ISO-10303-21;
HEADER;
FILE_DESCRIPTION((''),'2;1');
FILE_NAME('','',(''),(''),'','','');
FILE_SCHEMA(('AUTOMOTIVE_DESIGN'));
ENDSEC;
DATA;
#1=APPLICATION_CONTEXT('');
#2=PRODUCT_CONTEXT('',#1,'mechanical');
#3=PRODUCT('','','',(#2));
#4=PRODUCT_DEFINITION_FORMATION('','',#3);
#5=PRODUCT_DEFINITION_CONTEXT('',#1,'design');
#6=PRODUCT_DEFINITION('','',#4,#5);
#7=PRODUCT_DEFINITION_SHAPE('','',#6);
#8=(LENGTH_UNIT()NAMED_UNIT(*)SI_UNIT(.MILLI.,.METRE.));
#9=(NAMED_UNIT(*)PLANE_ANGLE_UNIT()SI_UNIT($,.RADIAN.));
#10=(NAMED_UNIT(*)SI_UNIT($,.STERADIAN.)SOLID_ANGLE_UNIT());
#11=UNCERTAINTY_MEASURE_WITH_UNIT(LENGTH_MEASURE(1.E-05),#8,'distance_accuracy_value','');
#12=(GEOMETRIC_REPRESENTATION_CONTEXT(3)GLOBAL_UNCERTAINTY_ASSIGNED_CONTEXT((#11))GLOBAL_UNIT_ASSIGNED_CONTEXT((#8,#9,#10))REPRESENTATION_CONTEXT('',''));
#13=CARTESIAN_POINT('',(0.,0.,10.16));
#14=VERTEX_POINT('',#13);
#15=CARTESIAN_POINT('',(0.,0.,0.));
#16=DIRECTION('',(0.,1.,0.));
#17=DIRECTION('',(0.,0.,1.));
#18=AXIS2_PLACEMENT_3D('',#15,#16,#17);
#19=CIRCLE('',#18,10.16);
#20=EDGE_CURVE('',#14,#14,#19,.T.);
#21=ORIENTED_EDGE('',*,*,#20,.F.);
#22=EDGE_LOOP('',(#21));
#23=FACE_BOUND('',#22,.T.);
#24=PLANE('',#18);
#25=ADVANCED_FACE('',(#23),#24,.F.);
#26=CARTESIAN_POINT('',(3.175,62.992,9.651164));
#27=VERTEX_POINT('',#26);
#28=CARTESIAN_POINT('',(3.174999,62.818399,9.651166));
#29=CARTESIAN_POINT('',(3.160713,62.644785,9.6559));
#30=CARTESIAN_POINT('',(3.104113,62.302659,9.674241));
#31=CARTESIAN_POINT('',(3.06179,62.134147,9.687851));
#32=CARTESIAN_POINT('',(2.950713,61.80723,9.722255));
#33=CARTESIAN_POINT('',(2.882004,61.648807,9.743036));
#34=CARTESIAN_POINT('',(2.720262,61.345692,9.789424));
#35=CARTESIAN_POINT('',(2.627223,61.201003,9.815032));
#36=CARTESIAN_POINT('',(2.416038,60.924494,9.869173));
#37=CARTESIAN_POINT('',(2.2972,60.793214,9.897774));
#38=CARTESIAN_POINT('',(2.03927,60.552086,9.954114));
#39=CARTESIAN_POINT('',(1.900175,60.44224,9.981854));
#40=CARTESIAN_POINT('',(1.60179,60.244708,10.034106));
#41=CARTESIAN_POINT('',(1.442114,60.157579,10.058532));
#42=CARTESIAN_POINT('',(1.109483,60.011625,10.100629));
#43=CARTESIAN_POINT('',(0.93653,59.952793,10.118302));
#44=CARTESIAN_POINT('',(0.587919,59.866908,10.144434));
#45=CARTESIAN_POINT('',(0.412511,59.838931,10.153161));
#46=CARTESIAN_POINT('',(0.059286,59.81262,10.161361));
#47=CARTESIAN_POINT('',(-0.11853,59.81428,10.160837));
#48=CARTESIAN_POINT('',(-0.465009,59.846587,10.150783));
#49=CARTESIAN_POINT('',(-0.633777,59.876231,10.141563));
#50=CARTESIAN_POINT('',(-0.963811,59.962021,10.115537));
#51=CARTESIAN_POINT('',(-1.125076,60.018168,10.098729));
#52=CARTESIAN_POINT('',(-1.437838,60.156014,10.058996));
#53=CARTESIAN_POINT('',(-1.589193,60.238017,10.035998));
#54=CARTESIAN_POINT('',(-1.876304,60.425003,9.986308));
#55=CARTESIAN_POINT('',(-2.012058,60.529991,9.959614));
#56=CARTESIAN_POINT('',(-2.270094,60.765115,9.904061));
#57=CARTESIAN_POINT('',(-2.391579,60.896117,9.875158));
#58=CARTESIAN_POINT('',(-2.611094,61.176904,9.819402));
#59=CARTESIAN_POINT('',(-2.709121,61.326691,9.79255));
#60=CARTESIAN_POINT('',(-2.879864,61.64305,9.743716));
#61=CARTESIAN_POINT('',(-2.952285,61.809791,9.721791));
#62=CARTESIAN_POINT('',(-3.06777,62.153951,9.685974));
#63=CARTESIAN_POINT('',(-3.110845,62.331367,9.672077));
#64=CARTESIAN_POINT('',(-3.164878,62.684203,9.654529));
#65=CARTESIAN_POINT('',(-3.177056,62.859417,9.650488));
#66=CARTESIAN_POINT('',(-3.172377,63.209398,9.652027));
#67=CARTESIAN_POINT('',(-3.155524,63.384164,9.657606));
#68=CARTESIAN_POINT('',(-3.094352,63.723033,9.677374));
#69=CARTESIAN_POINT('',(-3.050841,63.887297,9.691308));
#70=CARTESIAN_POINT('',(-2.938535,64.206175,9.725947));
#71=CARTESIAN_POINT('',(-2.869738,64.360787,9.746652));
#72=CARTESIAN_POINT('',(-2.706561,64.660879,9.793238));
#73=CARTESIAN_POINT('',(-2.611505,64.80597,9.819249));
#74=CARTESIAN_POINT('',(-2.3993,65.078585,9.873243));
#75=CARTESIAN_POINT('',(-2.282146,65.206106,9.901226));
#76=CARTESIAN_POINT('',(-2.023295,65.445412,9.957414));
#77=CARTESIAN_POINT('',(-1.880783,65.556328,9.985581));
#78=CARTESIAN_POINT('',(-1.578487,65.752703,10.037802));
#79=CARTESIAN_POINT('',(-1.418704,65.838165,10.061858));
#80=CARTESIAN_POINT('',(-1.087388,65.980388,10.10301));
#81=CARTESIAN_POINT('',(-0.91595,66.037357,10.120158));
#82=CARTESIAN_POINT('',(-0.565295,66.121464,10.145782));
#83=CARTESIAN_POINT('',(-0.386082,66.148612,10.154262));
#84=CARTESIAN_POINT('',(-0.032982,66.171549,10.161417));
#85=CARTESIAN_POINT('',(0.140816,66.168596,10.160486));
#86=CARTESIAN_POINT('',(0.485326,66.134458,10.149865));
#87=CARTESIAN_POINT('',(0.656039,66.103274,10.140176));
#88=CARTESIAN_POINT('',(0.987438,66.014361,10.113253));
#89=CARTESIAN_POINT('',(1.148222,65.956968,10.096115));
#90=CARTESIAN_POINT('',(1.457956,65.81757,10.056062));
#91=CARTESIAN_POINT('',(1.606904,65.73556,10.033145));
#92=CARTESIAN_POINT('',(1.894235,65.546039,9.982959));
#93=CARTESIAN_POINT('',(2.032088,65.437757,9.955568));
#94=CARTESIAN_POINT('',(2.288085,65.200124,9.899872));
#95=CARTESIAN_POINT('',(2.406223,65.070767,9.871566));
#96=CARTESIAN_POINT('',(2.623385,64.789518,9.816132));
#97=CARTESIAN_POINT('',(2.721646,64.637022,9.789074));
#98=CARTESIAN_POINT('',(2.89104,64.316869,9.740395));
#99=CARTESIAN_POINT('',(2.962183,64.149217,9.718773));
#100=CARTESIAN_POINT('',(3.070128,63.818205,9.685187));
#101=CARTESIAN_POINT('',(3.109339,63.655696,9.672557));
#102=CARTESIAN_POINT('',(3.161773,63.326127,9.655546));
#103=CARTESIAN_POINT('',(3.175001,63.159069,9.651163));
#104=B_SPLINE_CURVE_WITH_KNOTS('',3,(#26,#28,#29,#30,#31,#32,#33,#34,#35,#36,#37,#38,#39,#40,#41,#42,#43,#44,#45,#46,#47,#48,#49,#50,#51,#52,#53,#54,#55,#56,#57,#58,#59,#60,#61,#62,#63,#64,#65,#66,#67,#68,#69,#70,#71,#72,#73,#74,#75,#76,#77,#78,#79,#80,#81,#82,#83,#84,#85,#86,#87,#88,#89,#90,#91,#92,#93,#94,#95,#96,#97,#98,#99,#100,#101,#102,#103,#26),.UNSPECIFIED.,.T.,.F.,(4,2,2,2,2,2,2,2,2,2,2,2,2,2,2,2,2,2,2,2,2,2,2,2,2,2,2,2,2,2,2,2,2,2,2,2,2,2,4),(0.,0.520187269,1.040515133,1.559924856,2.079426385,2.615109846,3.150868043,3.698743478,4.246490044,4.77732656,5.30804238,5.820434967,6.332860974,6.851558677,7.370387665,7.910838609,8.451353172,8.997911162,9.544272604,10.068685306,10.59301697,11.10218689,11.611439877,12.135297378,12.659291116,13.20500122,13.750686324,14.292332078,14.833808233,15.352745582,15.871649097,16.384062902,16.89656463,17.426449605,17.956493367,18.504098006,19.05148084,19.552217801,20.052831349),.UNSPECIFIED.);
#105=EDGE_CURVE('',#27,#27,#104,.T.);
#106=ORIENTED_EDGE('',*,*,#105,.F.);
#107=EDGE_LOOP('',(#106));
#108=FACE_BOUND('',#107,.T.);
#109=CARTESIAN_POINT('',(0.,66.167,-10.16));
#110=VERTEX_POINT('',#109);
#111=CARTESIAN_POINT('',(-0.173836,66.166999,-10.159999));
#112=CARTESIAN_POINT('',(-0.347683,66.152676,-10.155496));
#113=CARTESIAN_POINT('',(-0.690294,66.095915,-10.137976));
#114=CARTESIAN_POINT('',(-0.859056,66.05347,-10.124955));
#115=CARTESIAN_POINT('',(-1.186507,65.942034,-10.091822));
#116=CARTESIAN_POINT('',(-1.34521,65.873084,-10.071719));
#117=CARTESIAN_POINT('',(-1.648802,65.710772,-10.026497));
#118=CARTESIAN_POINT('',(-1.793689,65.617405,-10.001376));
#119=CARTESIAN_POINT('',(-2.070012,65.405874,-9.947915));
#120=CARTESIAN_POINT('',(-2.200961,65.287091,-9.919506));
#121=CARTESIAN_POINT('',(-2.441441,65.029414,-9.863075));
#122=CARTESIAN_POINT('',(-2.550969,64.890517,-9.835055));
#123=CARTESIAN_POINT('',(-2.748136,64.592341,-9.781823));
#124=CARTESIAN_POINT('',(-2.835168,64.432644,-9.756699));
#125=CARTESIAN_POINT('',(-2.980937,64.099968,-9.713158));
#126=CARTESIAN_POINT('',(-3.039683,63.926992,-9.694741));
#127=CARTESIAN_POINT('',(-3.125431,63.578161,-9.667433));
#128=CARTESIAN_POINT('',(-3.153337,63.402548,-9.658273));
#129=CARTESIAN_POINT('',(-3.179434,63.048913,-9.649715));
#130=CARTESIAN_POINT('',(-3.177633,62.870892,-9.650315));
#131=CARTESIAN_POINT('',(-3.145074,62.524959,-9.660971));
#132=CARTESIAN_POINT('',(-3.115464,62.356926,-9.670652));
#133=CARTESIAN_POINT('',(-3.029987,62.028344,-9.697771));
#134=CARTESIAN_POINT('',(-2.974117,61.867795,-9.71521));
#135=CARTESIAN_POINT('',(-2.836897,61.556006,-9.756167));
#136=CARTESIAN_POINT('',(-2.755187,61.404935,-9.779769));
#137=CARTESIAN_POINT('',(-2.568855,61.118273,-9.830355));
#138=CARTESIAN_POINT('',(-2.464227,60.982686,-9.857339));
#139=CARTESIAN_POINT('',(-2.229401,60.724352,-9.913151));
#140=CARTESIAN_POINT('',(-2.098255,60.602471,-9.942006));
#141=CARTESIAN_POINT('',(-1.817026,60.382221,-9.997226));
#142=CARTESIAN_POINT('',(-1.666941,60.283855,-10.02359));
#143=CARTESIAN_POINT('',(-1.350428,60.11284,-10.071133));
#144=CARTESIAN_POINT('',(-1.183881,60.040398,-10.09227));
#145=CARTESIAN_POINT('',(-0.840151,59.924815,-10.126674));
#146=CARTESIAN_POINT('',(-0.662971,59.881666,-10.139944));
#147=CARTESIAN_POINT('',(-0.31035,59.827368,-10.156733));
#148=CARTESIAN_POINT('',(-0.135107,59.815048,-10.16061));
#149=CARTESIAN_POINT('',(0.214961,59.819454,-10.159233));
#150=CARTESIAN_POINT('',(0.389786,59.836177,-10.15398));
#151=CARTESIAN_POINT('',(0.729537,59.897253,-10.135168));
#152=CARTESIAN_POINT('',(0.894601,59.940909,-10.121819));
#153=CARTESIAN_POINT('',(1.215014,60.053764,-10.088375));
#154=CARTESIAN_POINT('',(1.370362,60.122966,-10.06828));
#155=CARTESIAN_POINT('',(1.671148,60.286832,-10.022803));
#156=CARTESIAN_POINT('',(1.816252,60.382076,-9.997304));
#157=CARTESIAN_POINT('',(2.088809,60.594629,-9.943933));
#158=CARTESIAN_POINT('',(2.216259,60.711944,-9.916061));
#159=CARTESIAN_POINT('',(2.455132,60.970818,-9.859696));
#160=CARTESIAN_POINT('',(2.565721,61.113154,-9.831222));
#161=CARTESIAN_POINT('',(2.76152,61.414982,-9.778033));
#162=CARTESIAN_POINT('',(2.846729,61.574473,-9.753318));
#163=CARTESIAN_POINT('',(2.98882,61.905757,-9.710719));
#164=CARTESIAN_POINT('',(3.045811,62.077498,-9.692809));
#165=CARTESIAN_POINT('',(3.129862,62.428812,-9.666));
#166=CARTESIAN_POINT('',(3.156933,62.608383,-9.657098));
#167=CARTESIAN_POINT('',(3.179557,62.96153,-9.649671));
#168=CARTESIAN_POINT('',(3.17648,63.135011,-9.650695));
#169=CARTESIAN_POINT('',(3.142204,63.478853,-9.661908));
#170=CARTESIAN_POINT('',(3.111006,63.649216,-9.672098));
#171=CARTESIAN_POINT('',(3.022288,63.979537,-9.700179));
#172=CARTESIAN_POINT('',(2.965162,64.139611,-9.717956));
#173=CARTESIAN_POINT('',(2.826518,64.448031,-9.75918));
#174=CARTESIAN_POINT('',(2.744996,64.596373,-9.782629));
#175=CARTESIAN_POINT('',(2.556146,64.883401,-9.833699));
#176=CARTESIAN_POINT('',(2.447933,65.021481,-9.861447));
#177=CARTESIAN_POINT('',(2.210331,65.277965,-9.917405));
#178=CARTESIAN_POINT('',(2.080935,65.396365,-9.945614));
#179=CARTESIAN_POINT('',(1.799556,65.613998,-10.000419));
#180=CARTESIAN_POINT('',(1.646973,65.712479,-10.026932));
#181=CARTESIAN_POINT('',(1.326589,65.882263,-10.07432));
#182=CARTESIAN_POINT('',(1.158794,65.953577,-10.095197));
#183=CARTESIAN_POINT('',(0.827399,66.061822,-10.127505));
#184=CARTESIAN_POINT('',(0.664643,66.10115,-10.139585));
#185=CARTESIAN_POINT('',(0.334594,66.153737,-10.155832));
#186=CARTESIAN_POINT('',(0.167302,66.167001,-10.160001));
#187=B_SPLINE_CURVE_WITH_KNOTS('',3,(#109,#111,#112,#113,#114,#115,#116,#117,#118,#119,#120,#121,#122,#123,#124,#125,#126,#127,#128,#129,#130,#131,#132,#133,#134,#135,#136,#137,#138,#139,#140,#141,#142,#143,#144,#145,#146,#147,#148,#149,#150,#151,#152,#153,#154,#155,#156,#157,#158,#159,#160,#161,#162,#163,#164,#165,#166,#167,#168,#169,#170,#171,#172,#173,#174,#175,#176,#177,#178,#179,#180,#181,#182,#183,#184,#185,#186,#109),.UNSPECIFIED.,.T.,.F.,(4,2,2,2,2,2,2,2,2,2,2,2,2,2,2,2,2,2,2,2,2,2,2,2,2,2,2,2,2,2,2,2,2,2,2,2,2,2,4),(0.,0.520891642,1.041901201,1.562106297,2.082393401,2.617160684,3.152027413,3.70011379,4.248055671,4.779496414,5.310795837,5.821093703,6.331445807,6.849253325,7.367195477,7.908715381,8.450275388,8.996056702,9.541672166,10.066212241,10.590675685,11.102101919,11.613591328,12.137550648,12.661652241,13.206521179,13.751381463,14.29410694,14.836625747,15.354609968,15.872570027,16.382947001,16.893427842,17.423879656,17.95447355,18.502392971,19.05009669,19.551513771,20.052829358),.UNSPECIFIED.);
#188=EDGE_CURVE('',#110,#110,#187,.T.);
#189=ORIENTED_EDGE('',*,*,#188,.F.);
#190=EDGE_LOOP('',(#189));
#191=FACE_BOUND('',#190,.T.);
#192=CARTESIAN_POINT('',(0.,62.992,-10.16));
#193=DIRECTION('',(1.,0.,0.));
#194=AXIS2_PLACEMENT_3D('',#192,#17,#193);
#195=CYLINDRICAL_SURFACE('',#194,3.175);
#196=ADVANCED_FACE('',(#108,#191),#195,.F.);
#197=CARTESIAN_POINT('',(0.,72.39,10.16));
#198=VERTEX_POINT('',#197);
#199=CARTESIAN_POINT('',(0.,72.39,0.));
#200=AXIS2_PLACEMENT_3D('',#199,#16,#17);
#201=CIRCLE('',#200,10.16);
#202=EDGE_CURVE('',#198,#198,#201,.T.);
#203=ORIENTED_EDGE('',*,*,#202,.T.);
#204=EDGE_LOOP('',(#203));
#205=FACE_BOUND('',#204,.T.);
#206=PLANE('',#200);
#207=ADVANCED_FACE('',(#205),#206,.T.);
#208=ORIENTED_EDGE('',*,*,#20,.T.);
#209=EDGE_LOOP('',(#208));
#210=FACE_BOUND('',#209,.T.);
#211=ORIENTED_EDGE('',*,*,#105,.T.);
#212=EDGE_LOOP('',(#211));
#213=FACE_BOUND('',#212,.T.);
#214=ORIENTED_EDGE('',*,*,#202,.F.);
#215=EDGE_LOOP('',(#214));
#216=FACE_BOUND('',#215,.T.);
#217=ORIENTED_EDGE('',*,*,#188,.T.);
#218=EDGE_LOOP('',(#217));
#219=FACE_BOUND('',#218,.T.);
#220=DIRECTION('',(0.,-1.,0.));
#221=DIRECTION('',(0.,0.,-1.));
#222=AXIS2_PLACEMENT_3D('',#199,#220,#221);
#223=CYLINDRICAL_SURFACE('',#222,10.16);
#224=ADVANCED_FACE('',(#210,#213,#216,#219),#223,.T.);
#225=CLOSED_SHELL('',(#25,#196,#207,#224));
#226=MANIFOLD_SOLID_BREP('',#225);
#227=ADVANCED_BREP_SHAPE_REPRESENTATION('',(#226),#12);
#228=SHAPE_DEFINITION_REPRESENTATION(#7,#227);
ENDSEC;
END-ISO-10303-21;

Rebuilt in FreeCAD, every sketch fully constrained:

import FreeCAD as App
import Part
import Sketcher

V = App.Vector
Q = App.Units.Quantity

doc = App.newDocument("Part")
body = doc.addObject("PartDesign::Body", "Body")

# Sketch on XZ plane
sketch1 = doc.addObject("Sketcher::SketchObject", "Sketch")
body.addObject(sketch1)
sketch1.AttachmentSupport = (doc.XZ_Plane, [""])
sketch1.MapMode = "FlatFace"
sketch1.addGeometry(Part.Circle(V(0, 0, 0), V(0, 0, 1), 10.16), False)
sketch1.addConstraint(Sketcher.Constraint("Coincident", 0, 3, -1, 1))
sketch1.addConstraint(Sketcher.Constraint("Diameter", 0, Q("0.8 in")))
pad1 = doc.addObject("PartDesign::Pad", "Pad")
body.addObject(pad1)
pad1.Profile = sketch1
pad1.Length = Q("2.85 in")
pad1.Reversed = True

# Sketch on XY plane
sketch2 = doc.addObject("Sketcher::SketchObject", "Sketch001")
body.addObject(sketch2)
sketch2.AttachmentSupport = (doc.XY_Plane, [""])
sketch2.MapMode = "FlatFace"
sketch2.addGeometry(Part.Circle(V(0, 62.992, 0), V(0, 0, 1), 3.175), False)
sketch2.addConstraint(Sketcher.Constraint("PointOnObject", 0, 3, -2))
sketch2.addConstraint(Sketcher.Constraint("Diameter", 0, Q("0.25 in")))
sketch2.addConstraint(Sketcher.Constraint("DistanceY", -1, 1, 0, 3, Q("2.48 in")))
pocket1 = doc.addObject("PartDesign::Pocket", "Pocket")
body.addObject(pocket1)
pocket1.Profile = sketch2
pocket1.Type = "ThroughAll"
pocket1.Midplane = True

doc.recompute()
